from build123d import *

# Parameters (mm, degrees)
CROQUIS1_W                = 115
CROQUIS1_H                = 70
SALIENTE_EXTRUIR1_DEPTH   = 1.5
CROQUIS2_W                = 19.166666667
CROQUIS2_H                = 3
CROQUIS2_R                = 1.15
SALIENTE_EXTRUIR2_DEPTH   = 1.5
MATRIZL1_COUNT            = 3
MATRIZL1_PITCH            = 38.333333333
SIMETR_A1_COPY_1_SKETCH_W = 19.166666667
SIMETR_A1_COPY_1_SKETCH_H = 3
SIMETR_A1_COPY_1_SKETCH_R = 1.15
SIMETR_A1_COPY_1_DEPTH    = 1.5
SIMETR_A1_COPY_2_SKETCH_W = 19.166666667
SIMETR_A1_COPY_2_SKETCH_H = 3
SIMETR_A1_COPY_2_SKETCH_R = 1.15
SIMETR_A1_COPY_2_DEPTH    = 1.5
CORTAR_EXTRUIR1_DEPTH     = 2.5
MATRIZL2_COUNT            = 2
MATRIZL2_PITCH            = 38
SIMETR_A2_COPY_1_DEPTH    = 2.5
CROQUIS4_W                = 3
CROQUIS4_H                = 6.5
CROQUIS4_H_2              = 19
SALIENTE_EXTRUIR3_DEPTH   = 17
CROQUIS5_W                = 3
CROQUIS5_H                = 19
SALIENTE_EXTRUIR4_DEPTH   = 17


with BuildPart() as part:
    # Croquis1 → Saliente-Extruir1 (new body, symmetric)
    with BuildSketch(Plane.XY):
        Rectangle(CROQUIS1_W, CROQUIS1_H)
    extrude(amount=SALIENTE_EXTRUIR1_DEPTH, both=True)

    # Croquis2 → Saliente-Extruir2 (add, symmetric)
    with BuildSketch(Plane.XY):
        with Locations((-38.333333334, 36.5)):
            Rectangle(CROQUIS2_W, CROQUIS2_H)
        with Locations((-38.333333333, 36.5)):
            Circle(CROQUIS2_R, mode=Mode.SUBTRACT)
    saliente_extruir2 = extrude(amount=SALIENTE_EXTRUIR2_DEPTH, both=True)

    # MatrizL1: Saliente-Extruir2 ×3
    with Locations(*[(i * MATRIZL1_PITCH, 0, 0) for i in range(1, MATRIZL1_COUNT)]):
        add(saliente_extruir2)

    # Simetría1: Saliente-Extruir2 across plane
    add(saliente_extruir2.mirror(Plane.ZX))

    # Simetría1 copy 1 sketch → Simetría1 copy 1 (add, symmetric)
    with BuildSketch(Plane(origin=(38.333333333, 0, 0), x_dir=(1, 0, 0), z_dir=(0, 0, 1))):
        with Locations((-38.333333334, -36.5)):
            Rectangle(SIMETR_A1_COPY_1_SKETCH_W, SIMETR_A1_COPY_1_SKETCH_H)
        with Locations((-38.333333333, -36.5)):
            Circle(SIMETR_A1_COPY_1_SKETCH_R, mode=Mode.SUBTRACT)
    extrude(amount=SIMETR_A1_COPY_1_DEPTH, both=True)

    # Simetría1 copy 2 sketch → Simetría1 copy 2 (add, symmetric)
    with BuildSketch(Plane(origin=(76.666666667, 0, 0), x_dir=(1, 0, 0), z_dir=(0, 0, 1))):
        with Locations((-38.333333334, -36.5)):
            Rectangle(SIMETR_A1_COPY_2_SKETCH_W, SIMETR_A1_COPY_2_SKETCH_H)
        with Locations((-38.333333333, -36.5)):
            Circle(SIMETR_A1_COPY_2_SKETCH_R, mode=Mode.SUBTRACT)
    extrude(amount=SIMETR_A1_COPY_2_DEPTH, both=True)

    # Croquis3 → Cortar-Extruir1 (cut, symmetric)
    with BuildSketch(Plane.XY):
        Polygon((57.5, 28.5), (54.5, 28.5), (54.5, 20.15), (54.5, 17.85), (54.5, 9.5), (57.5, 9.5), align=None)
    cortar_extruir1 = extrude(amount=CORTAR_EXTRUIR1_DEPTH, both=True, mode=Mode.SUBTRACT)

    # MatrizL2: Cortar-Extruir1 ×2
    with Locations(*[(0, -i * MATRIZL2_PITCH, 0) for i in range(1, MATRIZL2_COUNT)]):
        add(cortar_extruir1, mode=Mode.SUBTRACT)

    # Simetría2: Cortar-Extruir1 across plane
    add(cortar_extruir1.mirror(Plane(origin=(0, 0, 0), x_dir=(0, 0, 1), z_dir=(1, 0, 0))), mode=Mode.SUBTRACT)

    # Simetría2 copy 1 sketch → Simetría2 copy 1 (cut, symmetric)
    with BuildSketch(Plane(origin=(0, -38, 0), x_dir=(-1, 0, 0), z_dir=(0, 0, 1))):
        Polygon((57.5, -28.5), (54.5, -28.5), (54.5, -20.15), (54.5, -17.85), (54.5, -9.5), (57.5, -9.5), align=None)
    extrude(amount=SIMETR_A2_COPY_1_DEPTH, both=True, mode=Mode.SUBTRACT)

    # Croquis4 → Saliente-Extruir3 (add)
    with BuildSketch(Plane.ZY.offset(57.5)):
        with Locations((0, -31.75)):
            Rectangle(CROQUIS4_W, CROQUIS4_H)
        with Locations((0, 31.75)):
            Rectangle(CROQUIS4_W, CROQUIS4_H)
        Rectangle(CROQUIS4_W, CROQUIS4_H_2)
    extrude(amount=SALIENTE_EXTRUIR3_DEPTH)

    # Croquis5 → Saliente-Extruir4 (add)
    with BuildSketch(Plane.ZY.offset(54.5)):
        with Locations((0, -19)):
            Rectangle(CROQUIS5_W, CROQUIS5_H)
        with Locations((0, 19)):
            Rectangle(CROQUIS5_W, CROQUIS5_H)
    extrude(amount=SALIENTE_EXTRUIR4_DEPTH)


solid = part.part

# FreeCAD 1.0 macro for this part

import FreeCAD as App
import Part
import Sketcher
Q = App.Units.Quantity

doc = App.newDocument("Part")
body = doc.addObject("PartDesign::Body", "Body")

# Sketch on XY plane
sketch1 = body.newObject("Sketcher::SketchObject", "Sketch")
sketch1.AttachmentSupport = (doc.getObject("XY_Plane"), [""])
sketch1.MapMode = "FlatFace"
sketch1.addGeometry([
    Part.LineSegment(App.Vector(-58, 35, 0), App.Vector(-58, -35, 0)),
    Part.LineSegment(App.Vector(-58, -35, 0), App.Vector(58, -35, 0)),
    Part.LineSegment(App.Vector(58, -35, 0), App.Vector(58, 35, 0)),
    Part.LineSegment(App.Vector(58, 35, 0), App.Vector(-58, 35, 0)),
], False)
sketch1.addConstraint([
    Sketcher.Constraint("Coincident", 0, 2, 1, 1),
    Sketcher.Constraint("Coincident", 1, 2, 2, 1),
    Sketcher.Constraint("Coincident", 2, 2, 3, 1),
    Sketcher.Constraint("Coincident", 3, 2, 0, 1),
    Sketcher.Constraint("Vertical", 0),
    Sketcher.Constraint("Horizontal", 1),
    Sketcher.Constraint("Vertical", 2),
    Sketcher.Constraint("Horizontal", 3),
    Sketcher.Constraint("Symmetric", 0, 2, 2, 2, -1, 1),
    Sketcher.Constraint("DistanceX", 1, 1, 1, 2, Q("115 mm")),
    Sketcher.Constraint("DistanceY", 0, 2, 0, 1, Q("70 mm")),
])
pad1 = body.newObject("PartDesign::Pad", "Pad")
pad1.Profile = sketch1
pad1.Length = 3
pad1.Midplane = True

# Sketch on XY plane
sketch2 = body.newObject("Sketcher::SketchObject", "Sketch001")
sketch2.AttachmentSupport = (doc.getObject("XY_Plane"), [""])
sketch2.MapMode = "FlatFace"
sketch2.addGeometry([
    Part.LineSegment(App.Vector(-47.9, 38, 0), App.Vector(-47.9, 35, 0)),  # 0
    Part.LineSegment(App.Vector(-47.9, 35, 0), App.Vector(-28.8, 35, 0)),  # 1
    Part.LineSegment(App.Vector(-28.8, 35, 0), App.Vector(-28.8, 38, 0)),  # 2
    Part.LineSegment(App.Vector(-28.8, 38, 0), App.Vector(-47.9, 38, 0)),  # 3
    Part.Circle(App.Vector(-38.3, 36.5, 0), App.Vector(0, 0, 1), 1.1),  # 4
], False)
sketch2.addConstraint([
    Sketcher.Constraint("Coincident", 0, 2, 1, 1),
    Sketcher.Constraint("Coincident", 1, 2, 2, 1),
    Sketcher.Constraint("Coincident", 2, 2, 3, 1),
    Sketcher.Constraint("Coincident", 3, 2, 0, 1),
    Sketcher.Constraint("Vertical", 0),
    Sketcher.Constraint("Horizontal", 1),
    Sketcher.Constraint("Vertical", 2),
    Sketcher.Constraint("Horizontal", 3),
    Sketcher.Constraint("Diameter", 4, Q("2.3 mm")),
    Sketcher.Constraint("DistanceY", 0, 2, 0, 1, Q("3 mm")),
    Sketcher.Constraint("DistanceY", -1, 1, 0, 2, Q("35 mm")),
    Sketcher.Constraint("DistanceY", -1, 1, 4, 3, Q("36.5 mm")),
    Sketcher.Constraint("DistanceX", 1, 2, -1, 1, Q("28.75 mm")),
    Sketcher.Constraint("DistanceX", 1, 1, 1, 2, Q("19.166667 mm")),
    Sketcher.Constraint("DistanceX", 4, 3, -1, 1, Q("38.333333 mm")),
])
pad2 = body.newObject("PartDesign::Pad", "Pad001")
pad2.Profile = sketch2
pad2.Length = 3
pad2.Midplane = True
doc.recompute()

linearpattern = body.newObject("PartDesign::LinearPattern", "LinearPattern")
linearpattern.Originals = [pad2]
linearpattern.Direction = (doc.getObject("X_Axis"), [""])
linearpattern.Mode = "offset"
linearpattern.Offset = 38.333333
linearpattern.Occurrences = 3
body.Tip = linearpattern
doc.recompute()

mirrored = body.newObject("PartDesign::Mirrored", "Mirrored")
mirrored.Originals = [pad2]
mirrored.MirrorPlane = (doc.getObject("XZ_Plane"), [""])
body.Tip = mirrored

# Sketch on XY plane
sketch3 = body.newObject("Sketcher::SketchObject", "Sketch002")
sketch3.AttachmentSupport = (doc.getObject("XY_Plane"), [""])
sketch3.MapMode = "FlatFace"
sketch3.addGeometry([
    Part.LineSegment(App.Vector(-9.6, -35, 0), App.Vector(-9.6, -38, 0)),  # 0
    Part.LineSegment(App.Vector(-9.6, -38, 0), App.Vector(9.6, -38, 0)),  # 1
    Part.LineSegment(App.Vector(9.6, -38, 0), App.Vector(9.6, -35, 0)),  # 2
    Part.LineSegment(App.Vector(9.6, -35, 0), App.Vector(-9.6, -35, 0)),  # 3
    Part.Circle(App.Vector(0, -36.5, 0), App.Vector(0, 0, 1), 1.1),  # 4
], False)
sketch3.addConstraint([
    Sketcher.Constraint("Coincident", 0, 2, 1, 1),
    Sketcher.Constraint("Coincident", 1, 2, 2, 1),
    Sketcher.Constraint("Coincident", 2, 2, 3, 1),
    Sketcher.Constraint("Coincident", 3, 2, 0, 1),
    Sketcher.Constraint("Vertical", 0),
    Sketcher.Constraint("Horizontal", 1),
    Sketcher.Constraint("Vertical", 2),
    Sketcher.Constraint("Horizontal", 3),
    Sketcher.Constraint("PointOnObject", 4, 3, -2),
    Sketcher.Constraint("Diameter", 4, Q("2.3 mm")),
    Sketcher.Constraint("DistanceY", 0, 2, 0, 1, Q("3 mm")),
    Sketcher.Constraint("DistanceY", 0, 2, -1, 1, Q("38 mm")),
    Sketcher.Constraint("DistanceY", 4, 3, -1, 1, Q("36.5 mm")),
    Sketcher.Constraint("DistanceX", 1, 1, 1, 2, Q("19.166667 mm")),
    Sketcher.Constraint("DistanceX", 0, 2, -1, 1, Q("9.583333 mm")),
])
pad3 = body.newObject("PartDesign::Pad", "Pad002")
pad3.Profile = sketch3
pad3.Length = 3
pad3.Midplane = True

# Sketch on XY plane
sketch4 = body.newObject("Sketcher::SketchObject", "Sketch003")
sketch4.AttachmentSupport = (doc.getObject("XY_Plane"), [""])
sketch4.MapMode = "FlatFace"
sketch4.addGeometry([
    Part.LineSegment(App.Vector(28.7, -35, 0), App.Vector(28.7, -38, 0)),  # 0
    Part.LineSegment(App.Vector(28.7, -38, 0), App.Vector(47.9, -38, 0)),  # 1
    Part.LineSegment(App.Vector(47.9, -38, 0), App.Vector(47.9, -35, 0)),  # 2
    Part.LineSegment(App.Vector(47.9, -35, 0), App.Vector(28.7, -35, 0)),  # 3
    Part.Circle(App.Vector(38.3, -36.5, 0), App.Vector(0, 0, 1), 1.1),  # 4
], False)
sketch4.addConstraint([
    Sketcher.Constraint("Coincident", 0, 2, 1, 1),
    Sketcher.Constraint("Coincident", 1, 2, 2, 1),
    Sketcher.Constraint("Coincident", 2, 2, 3, 1),
    Sketcher.Constraint("Coincident", 3, 2, 0, 1),
    Sketcher.Constraint("Vertical", 0),
    Sketcher.Constraint("Horizontal", 1),
    Sketcher.Constraint("Vertical", 2),
    Sketcher.Constraint("Horizontal", 3),
    Sketcher.Constraint("Diameter", 4, Q("2.3 mm")),
    Sketcher.Constraint("DistanceY", 0, 2, 0, 1, Q("3 mm")),
    Sketcher.Constraint("DistanceY", 0, 2, -1, 1, Q("38 mm")),
    Sketcher.Constraint("DistanceY", 4, 3, -1, 1, Q("36.5 mm")),
    Sketcher.Constraint("DistanceX", -1, 1, 0, 2, Q("28.75 mm")),
    Sketcher.Constraint("DistanceX", 1, 1, 1, 2, Q("19.166667 mm")),
    Sketcher.Constraint("DistanceX", -1, 1, 4, 3, Q("38.333333 mm")),
])
pad4 = body.newObject("PartDesign::Pad", "Pad003")
pad4.Profile = sketch4
pad4.Length = 3
pad4.Midplane = True

# Sketch on XY plane
sketch5 = body.newObject("Sketcher::SketchObject", "Sketch004")
sketch5.AttachmentSupport = (doc.getObject("XY_Plane"), [""])
sketch5.MapMode = "FlatFace"
sketch5.addGeometry([
    Part.LineSegment(App.Vector(57.5, 28.5, 0), App.Vector(54.5, 28.5, 0)),
    Part.LineSegment(App.Vector(54.5, 28.5, 0), App.Vector(54.5, 9.5, 0)),
    Part.LineSegment(App.Vector(54.5, 9.5, 0), App.Vector(57.5, 9.5, 0)),
    Part.LineSegment(App.Vector(57.5, 9.5, 0), App.Vector(57.5, 28.5, 0)),
], False)
sketch5.addConstraint([
    Sketcher.Constraint("Coincident", 0, 2, 1, 1),
    Sketcher.Constraint("Coincident", 1, 2, 2, 1),
    Sketcher.Constraint("Coincident", 2, 2, 3, 1),
    Sketcher.Constraint("Coincident", 3, 2, 0, 1),
    Sketcher.Constraint("Horizontal", 0),
    Sketcher.Constraint("Vertical", 1),
    Sketcher.Constraint("Horizontal", 2),
    Sketcher.Constraint("Vertical", 3),
    Sketcher.Constraint("DistanceX", 0, 2, 0, 1, Q("3 mm")),
    Sketcher.Constraint("DistanceY", 1, 2, 1, 1, Q("19 mm")),
    Sketcher.Constraint("DistanceX", -1, 1, 0, 2, Q("54.5 mm")),
    Sketcher.Constraint("DistanceY", -1, 1, 0, 2, Q("28.5 mm")),
])
pocket1 = body.newObject("PartDesign::Pocket", "Pocket")
pocket1.Profile = sketch5
pocket1.Length = 5
pocket1.Midplane = True
doc.recompute()

linearpattern2 = body.newObject("PartDesign::LinearPattern", "LinearPattern001")
linearpattern2.Originals = [pocket1]
linearpattern2.Direction = (doc.getObject("Y_Axis"), [""])
linearpattern2.Mode = "offset"
linearpattern2.Offset = 38
linearpattern2.Occurrences = 2
linearpattern2.Reversed = True
body.Tip = linearpattern2
doc.recompute()

mirrored2 = body.newObject("PartDesign::Mirrored", "Mirrored001")
mirrored2.Originals = [pocket1]
mirrored2.MirrorPlane = (doc.getObject("YZ_Plane"), [""])
body.Tip = mirrored2

# Sketch on XY plane
sketch6 = body.newObject("Sketcher::SketchObject", "Sketch005")
sketch6.AttachmentSupport = (doc.getObject("XY_Plane"), [""])
sketch6.MapMode = "FlatFace"
sketch6.addGeometry([
    Part.LineSegment(App.Vector(-54.5, -9.5, 0), App.Vector(-57.5, -9.5, 0)),
    Part.LineSegment(App.Vector(-57.5, -9.5, 0), App.Vector(-57.5, -28.5, 0)),
    Part.LineSegment(App.Vector(-57.5, -28.5, 0), App.Vector(-54.5, -28.5, 0)),
    Part.LineSegment(App.Vector(-54.5, -28.5, 0), App.Vector(-54.5, -9.5, 0)),
], False)
sketch6.addConstraint([
    Sketcher.Constraint("Coincident", 0, 2, 1, 1),
    Sketcher.Constraint("Coincident", 1, 2, 2, 1),
    Sketcher.Constraint("Coincident", 2, 2, 3, 1),
    Sketcher.Constraint("Coincident", 3, 2, 0, 1),
    Sketcher.Constraint("Horizontal", 0),
    Sketcher.Constraint("Vertical", 1),
    Sketcher.Constraint("Horizontal", 2),
    Sketcher.Constraint("Vertical", 3),
    Sketcher.Constraint("DistanceX", 0, 2, 0, 1, Q("3 mm")),
    Sketcher.Constraint("DistanceY", 1, 2, 1, 1, Q("19 mm")),
    Sketcher.Constraint("DistanceX", 0, 2, -1, 1, Q("57.5 mm")),
    Sketcher.Constraint("DistanceY", 0, 2, -1, 1, Q("9.5 mm")),
])
pocket2 = body.newObject("PartDesign::Pocket", "Pocket001")
pocket2.Profile = sketch6
pocket2.Length = 5
pocket2.Midplane = True

# Sketch on YZ plane
sketch7 = body.newObject("Sketcher::SketchObject", "Sketch006")
sketch7.AttachmentSupport = (doc.getObject("YZ_Plane"), [""])
sketch7.MapMode = "FlatFace"
sketch7.AttachmentOffset = App.Placement(App.Vector(0, 0, -57.5), App.Rotation())
sketch7.addGeometry([
    Part.LineSegment(App.Vector(-28.5, -1.5, 0), App.Vector(-35, -1.5, 0)),  # 0
    Part.LineSegment(App.Vector(-35, -1.5, 0), App.Vector(-35, 1.5, 0)),  # 1
    Part.LineSegment(App.Vector(-35, 1.5, 0), App.Vector(-28.5, 1.5, 0)),  # 2
    Part.LineSegment(App.Vector(-28.5, 1.5, 0), App.Vector(-28.5, -1.5, 0)),  # 3
    Part.LineSegment(App.Vector(35, -1.5, 0), App.Vector(28.5, -1.5, 0)),  # 4
    Part.LineSegment(App.Vector(28.5, -1.5, 0), App.Vector(28.5, 1.5, 0)),  # 5
    Part.LineSegment(App.Vector(28.5, 1.5, 0), App.Vector(35, 1.5, 0)),  # 6
    Part.LineSegment(App.Vector(35, 1.5, 0), App.Vector(35, -1.5, 0)),  # 7
    Part.LineSegment(App.Vector(9.5, -1.5, 0), App.Vector(-9.5, -1.5, 0)),  # 8
    Part.LineSegment(App.Vector(-9.5, -1.5, 0), App.Vector(-9.5, 1.5, 0)),  # 9
    Part.LineSegment(App.Vector(-9.5, 1.5, 0), App.Vector(9.5, 1.5, 0)),  # 10
    Part.LineSegment(App.Vector(9.5, 1.5, 0), App.Vector(9.5, -1.5, 0)),  # 11
], False)
sketch7.addConstraint([
    Sketcher.Constraint("Coincident", 0, 2, 1, 1),
    Sketcher.Constraint("Coincident", 1, 2, 2, 1),
    Sketcher.Constraint("Coincident", 2, 2, 3, 1),
    Sketcher.Constraint("Coincident", 3, 2, 0, 1),
    Sketcher.Constraint("Coincident", 4, 2, 5, 1),
    Sketcher.Constraint("Coincident", 5, 2, 6, 1),
    Sketcher.Constraint("Coincident", 6, 2, 7, 1),
    Sketcher.Constraint("Coincident", 7, 2, 4, 1),
    Sketcher.Constraint("Coincident", 8, 2, 9, 1),
    Sketcher.Constraint("Coincident", 9, 2, 10, 1),
    Sketcher.Constraint("Coincident", 10, 2, 11, 1),
    Sketcher.Constraint("Coincident", 11, 2, 8, 1),
    Sketcher.Constraint("Horizontal", 0),
    Sketcher.Constraint("Vertical", 1),
    Sketcher.Constraint("Horizontal", 2),
    Sketcher.Constraint("Vertical", 3),
    Sketcher.Constraint("Horizontal", 4),
    Sketcher.Constraint("Vertical", 5),
    Sketcher.Constraint("Horizontal", 6),
    Sketcher.Constraint("Vertical", 7),
    Sketcher.Constraint("Horizontal", 8),
    Sketcher.Constraint("Vertical", 9),
    Sketcher.Constraint("Horizontal", 10),
    Sketcher.Constraint("Vertical", 11),
    Sketcher.Constraint("Symmetric", 2, 2, 4, 2, -1, 1),
    Sketcher.Constraint("Symmetric", 0, 2, 6, 2, -1, 1),
    Sketcher.Constraint("Symmetric", 8, 2, 10, 2, -1, 1),
    Sketcher.Constraint("Horizontal", 3, 2, 4, 2),
    Sketcher.Constraint("Horizontal", 7, 2, 8, 2),
    Sketcher.Constraint("DistanceX", 8, 2, 8, 1, Q("19 mm")),
    Sketcher.Constraint("DistanceY", 1, 1, 1, 2, Q("3 mm")),
    Sketcher.Constraint("DistanceX", 0, 2, 0, 1, Q("6.5 mm")),
    Sketcher.Constraint("DistanceX", 0, 2, -1, 1, Q("35 mm")),
])
pad5 = body.newObject("PartDesign::Pad", "Pad004")
pad5.Profile = sketch7
pad5.Length = 17
pad5.Reversed = True

# Sketch on YZ plane
sketch8 = body.newObject("Sketcher::SketchObject", "Sketch007")
sketch8.AttachmentSupport = (doc.getObject("YZ_Plane"), [""])
sketch8.MapMode = "FlatFace"
sketch8.AttachmentOffset = App.Placement(App.Vector(0, 0, -54.5), App.Rotation())
sketch8.addGeometry([
    Part.LineSegment(App.Vector(-9.5, -1.5, 0), App.Vector(-28.5, -1.5, 0)),  # 0
    Part.LineSegment(App.Vector(-28.5, -1.5, 0), App.Vector(-28.5, 1.5, 0)),  # 1
    Part.LineSegment(App.Vector(-28.5, 1.5, 0), App.Vector(-9.5, 1.5, 0)),  # 2
    Part.LineSegment(App.Vector(-9.5, 1.5, 0), App.Vector(-9.5, -1.5, 0)),  # 3
    Part.LineSegment(App.Vector(28.5, -1.5, 0), App.Vector(9.5, -1.5, 0)),  # 4
    Part.LineSegment(App.Vector(9.5, -1.5, 0), App.Vector(9.5, 1.5, 0)),  # 5
    Part.LineSegment(App.Vector(9.5, 1.5, 0), App.Vector(28.5, 1.5, 0)),  # 6
    Part.LineSegment(App.Vector(28.5, 1.5, 0), App.Vector(28.5, -1.5, 0)),  # 7
], False)
sketch8.addConstraint([
    Sketcher.Constraint("Coincident", 0, 2, 1, 1),
    Sketcher.Constraint("Coincident", 1, 2, 2, 1),
    Sketcher.Constraint("Coincident", 2, 2, 3, 1),
    Sketcher.Constraint("Coincident", 3, 2, 0, 1),
    Sketcher.Constraint("Coincident", 4, 2, 5, 1),
    Sketcher.Constraint("Coincident", 5, 2, 6, 1),
    Sketcher.Constraint("Coincident", 6, 2, 7, 1),
    Sketcher.Constraint("Coincident", 7, 2, 4, 1),
    Sketcher.Constraint("Horizontal", 0),
    Sketcher.Constraint("Vertical", 1),
    Sketcher.Constraint("Horizontal", 2),
    Sketcher.Constraint("Vertical", 3),
    Sketcher.Constraint("Horizontal", 4),
    Sketcher.Constraint("Vertical", 5),
    Sketcher.Constraint("Horizontal", 6),
    Sketcher.Constraint("Vertical", 7),
    Sketcher.Constraint("Symmetric", 2, 2, 4, 2, -1, 1),
    Sketcher.Constraint("Symmetric", 0, 2, 6, 2, -1, 1),
    Sketcher.Constraint("Horizontal", 3, 2, 4, 2),
    Sketcher.Constraint("DistanceX", 0, 2, 0, 1, Q("19 mm")),
    Sketcher.Constraint("DistanceY", 1, 1, 1, 2, Q("3 mm")),
    Sketcher.Constraint("DistanceX", 3, 2, 4, 2, Q("19 mm")),
])
pad6 = body.newObject("PartDesign::Pad", "Pad005")
pad6.Profile = sketch8
pad6.Length = 17
pad6.Reversed = True

doc.recompute()
